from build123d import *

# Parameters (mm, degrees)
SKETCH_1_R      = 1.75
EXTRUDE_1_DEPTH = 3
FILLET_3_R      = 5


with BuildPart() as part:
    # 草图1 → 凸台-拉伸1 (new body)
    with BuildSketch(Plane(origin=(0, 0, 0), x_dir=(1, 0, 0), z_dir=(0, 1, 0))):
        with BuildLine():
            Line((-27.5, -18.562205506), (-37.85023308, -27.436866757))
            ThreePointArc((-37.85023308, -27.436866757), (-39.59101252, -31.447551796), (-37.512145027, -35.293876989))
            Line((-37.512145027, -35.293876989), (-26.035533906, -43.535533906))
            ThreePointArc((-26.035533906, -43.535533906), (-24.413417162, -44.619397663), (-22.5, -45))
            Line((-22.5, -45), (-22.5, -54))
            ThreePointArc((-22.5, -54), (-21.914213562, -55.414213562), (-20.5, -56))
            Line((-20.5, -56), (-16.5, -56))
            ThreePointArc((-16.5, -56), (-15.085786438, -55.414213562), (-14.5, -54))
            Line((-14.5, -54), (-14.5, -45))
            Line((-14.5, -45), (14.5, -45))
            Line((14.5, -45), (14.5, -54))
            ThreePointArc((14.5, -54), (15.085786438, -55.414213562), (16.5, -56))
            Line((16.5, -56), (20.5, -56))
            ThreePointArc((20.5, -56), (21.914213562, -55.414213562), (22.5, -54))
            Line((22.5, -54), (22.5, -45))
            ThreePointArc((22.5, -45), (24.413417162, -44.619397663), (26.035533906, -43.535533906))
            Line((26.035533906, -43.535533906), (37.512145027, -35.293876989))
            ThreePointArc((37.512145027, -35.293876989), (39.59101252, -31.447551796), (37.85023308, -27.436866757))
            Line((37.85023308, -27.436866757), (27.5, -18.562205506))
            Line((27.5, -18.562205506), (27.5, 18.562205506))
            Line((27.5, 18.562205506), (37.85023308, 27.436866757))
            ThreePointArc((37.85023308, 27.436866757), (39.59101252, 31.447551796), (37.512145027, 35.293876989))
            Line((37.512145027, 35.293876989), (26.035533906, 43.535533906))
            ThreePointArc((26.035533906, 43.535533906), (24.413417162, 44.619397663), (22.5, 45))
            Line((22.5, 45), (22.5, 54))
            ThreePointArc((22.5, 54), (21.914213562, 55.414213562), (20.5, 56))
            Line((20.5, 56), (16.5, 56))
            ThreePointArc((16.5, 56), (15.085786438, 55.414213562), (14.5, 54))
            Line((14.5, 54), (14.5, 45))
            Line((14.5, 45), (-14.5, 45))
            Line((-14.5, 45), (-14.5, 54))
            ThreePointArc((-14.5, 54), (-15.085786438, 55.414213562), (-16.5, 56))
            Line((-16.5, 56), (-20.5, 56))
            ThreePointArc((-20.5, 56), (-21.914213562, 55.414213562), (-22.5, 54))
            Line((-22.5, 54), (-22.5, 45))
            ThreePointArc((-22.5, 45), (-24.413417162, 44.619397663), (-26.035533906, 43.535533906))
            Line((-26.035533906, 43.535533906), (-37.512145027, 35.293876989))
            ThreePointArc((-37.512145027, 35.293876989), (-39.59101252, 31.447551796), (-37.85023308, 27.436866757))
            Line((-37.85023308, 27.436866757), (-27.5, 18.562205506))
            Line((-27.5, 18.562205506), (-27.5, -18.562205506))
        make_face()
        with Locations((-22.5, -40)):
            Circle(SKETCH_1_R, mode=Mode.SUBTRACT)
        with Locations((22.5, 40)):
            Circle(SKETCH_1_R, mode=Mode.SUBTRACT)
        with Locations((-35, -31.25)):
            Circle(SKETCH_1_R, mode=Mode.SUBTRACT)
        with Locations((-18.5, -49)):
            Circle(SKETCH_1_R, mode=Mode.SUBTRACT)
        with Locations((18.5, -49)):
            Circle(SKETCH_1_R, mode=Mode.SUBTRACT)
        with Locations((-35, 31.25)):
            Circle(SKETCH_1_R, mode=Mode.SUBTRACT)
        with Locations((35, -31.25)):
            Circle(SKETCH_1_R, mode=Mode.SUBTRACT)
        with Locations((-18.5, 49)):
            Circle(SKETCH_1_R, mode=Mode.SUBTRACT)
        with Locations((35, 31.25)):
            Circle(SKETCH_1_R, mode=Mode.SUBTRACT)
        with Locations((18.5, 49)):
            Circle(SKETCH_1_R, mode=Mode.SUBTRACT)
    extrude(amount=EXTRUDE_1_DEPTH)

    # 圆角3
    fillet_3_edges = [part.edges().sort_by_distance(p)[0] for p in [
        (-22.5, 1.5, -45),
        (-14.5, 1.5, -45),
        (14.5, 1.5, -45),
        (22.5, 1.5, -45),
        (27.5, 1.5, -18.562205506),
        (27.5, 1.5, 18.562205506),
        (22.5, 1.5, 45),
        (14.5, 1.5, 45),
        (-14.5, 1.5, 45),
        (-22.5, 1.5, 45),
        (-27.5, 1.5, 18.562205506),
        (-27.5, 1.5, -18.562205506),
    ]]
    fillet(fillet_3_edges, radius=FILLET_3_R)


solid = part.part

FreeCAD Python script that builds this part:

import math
import FreeCAD as App
import Part
import Sketcher


def edges_at(feature, points):
    """Names of the edges that pass closest to the given points."""
    edges = feature.Shape.Edges
    near = lambda p: min(range(len(edges)), key=lambda i: edges[i].distToShape(Part.Vertex(*p))[0])
    return sorted({f"Edge{near(p) + 1}" for p in points})

doc = App.newDocument("Part")
body = doc.addObject("PartDesign::Body", "Body")

sketch1 = body.newObject("Sketcher::SketchObject", "Sketch")
sketch1.AttachmentSupport = (doc.getObject("XZ_Plane"), [""])
sketch1.MapMode = "FlatFace"
sketch1.addGeometry(Part.LineSegment(App.Vector(-27.5, 18.6, 0), App.Vector(-37.9, 27.4, 0)), False)
sketch1.addGeometry(Part.ArcOfCircle(Part.Circle(App.Vector(-34.6, 31.2, 0), App.Vector(0, 0, 1), 5), math.radians(126), math.radians(229)), False)
sketch1.addGeometry(Part.LineSegment(App.Vector(-37.5, 35.3, 0), App.Vector(-26, 43.5, 0)), False)
sketch1.addGeometry(Part.ArcOfCircle(Part.Circle(App.Vector(-22.5, 40, 0), App.Vector(0, 0, 1), 5), math.radians(90), math.radians(135)), False)
sketch1.addGeometry(Part.LineSegment(App.Vector(-22.5, 45, 0), App.Vector(-22.5, 54, 0)), False)
sketch1.addGeometry(Part.ArcOfCircle(Part.Circle(App.Vector(-20.5, 54, 0), App.Vector(0, 0, 1), 2), math.radians(90), math.radians(180)), False)
sketch1.addGeometry(Part.LineSegment(App.Vector(-20.5, 56, 0), App.Vector(-16.5, 56, 0)), False)
sketch1.addGeometry(Part.ArcOfCircle(Part.Circle(App.Vector(-16.5, 54, 0), App.Vector(0, 0, 1), 2), math.radians(0), math.radians(90)), False)
sketch1.addGeometry(Part.LineSegment(App.Vector(-14.5, 54, 0), App.Vector(-14.5, 45, 0)), False)
sketch1.addGeometry(Part.LineSegment(App.Vector(-14.5, 45, 0), App.Vector(14.5, 45, 0)), False)
sketch1.addGeometry(Part.LineSegment(App.Vector(14.5, 45, 0), App.Vector(14.5, 54, 0)), False)
sketch1.addGeometry(Part.ArcOfCircle(Part.Circle(App.Vector(16.5, 54, 0), App.Vector(0, 0, 1), 2), math.radians(90), math.radians(180)), False)
sketch1.addGeometry(Part.LineSegment(App.Vector(16.5, 56, 0), App.Vector(20.5, 56, 0)), False)
sketch1.addGeometry(Part.ArcOfCircle(Part.Circle(App.Vector(20.5, 54, 0), App.Vector(0, 0, 1), 2), math.radians(0), math.radians(90)), False)
sketch1.addGeometry(Part.LineSegment(App.Vector(22.5, 54, 0), App.Vector(22.5, 45, 0)), False)
sketch1.addGeometry(Part.ArcOfCircle(Part.Circle(App.Vector(22.5, 40, 0), App.Vector(0, 0, 1), 5), math.radians(45), math.radians(90)), False)
sketch1.addGeometry(Part.LineSegment(App.Vector(26, 43.5, 0), App.Vector(37.5, 35.3, 0)), False)
sketch1.addGeometry(Part.ArcOfCircle(Part.Circle(App.Vector(34.6, 31.2, 0), App.Vector(0, 0, 1), 5), math.radians(-49), math.radians(54)), False)
sketch1.addGeometry(Part.LineSegment(App.Vector(37.9, 27.4, 0), App.Vector(27.5, 18.6, 0)), False)
sketch1.addGeometry(Part.LineSegment(App.Vector(27.5, 18.6, 0), App.Vector(27.5, -18.6, 0)), False)
sketch1.addGeometry(Part.LineSegment(App.Vector(27.5, -18.6, 0), App.Vector(37.9, -27.4, 0)), False)
sketch1.addGeometry(Part.ArcOfCircle(Part.Circle(App.Vector(34.6, -31.2, 0), App.Vector(0, 0, 1), 5), math.radians(-54), math.radians(49)), False)
sketch1.addGeometry(Part.LineSegment(App.Vector(37.5, -35.3, 0), App.Vector(26, -43.5, 0)), False)
sketch1.addGeometry(Part.ArcOfCircle(Part.Circle(App.Vector(22.5, -40, 0), App.Vector(0, 0, 1), 5), math.radians(-90), math.radians(-45)), False)
sketch1.addGeometry(Part.LineSegment(App.Vector(22.5, -45, 0), App.Vector(22.5, -54, 0)), False)
sketch1.addGeometry(Part.ArcOfCircle(Part.Circle(App.Vector(20.5, -54, 0), App.Vector(0, 0, 1), 2), math.radians(-90), math.radians(0)), False)
sketch1.addGeometry(Part.LineSegment(App.Vector(20.5, -56, 0), App.Vector(16.5, -56, 0)), False)
sketch1.addGeometry(Part.ArcOfCircle(Part.Circle(App.Vector(16.5, -54, 0), App.Vector(0, 0, 1), 2), math.radians(-180), math.radians(-90)), False)
sketch1.addGeometry(Part.LineSegment(App.Vector(14.5, -54, 0), App.Vector(14.5, -45, 0)), False)
sketch1.addGeometry(Part.LineSegment(App.Vector(14.5, -45, 0), App.Vector(-14.5, -45, 0)), False)
sketch1.addGeometry(Part.LineSegment(App.Vector(-14.5, -45, 0), App.Vector(-14.5, -54, 0)), False)
sketch1.addGeometry(Part.ArcOfCircle(Part.Circle(App.Vector(-16.5, -54, 0), App.Vector(0, 0, 1), 2), math.radians(-90), math.radians(0)), False)
sketch1.addGeometry(Part.LineSegment(App.Vector(-16.5, -56, 0), App.Vector(-20.5, -56, 0)), False)
sketch1.addGeometry(Part.ArcOfCircle(Part.Circle(App.Vector(-20.5, -54, 0), App.Vector(0, 0, 1), 2), math.radians(-180), math.radians(-90)), False)
sketch1.addGeometry(Part.LineSegment(App.Vector(-22.5, -54, 0), App.Vector(-22.5, -45, 0)), False)
sketch1.addGeometry(Part.ArcOfCircle(Part.Circle(App.Vector(-22.5, -40, 0), App.Vector(0, 0, 1), 5), math.radians(-135), math.radians(-90)), False)
sketch1.addGeometry(Part.LineSegment(App.Vector(-26, -43.5, 0), App.Vector(-37.5, -35.3, 0)), False)
sketch1.addGeometry(Part.ArcOfCircle(Part.Circle(App.Vector(-34.6, -31.2, 0), App.Vector(0, 0, 1), 5), math.radians(131), math.radians(234)), False)
sketch1.addGeometry(Part.LineSegment(App.Vector(-37.9, -27.4, 0), App.Vector(-27.5, -18.6, 0)), False)
sketch1.addGeometry(Part.LineSegment(App.Vector(-27.5, -18.6, 0), App.Vector(-27.5, 18.6, 0)), False)
sketch1.addGeometry(Part.Circle(App.Vector(-18.5, 49, 0), App.Vector(0, 0, 1), 1.8), False)
sketch1.addGeometry(Part.Circle(App.Vector(-22.5, 40, 0), App.Vector(0, 0, 1), 1.8), False)
sketch1.addGeometry(Part.Circle(App.Vector(-35, 31.2, 0), App.Vector(0, 0, 1), 1.8), False)
sketch1.addGeometry(Part.Circle(App.Vector(18.5, 49, 0), App.Vector(0, 0, 1), 1.8), False)
sketch1.addGeometry(Part.Circle(App.Vector(35, 31.2, 0), App.Vector(0, 0, 1), 1.8), False)
sketch1.addGeometry(Part.Circle(App.Vector(-35, -31.2, 0), App.Vector(0, 0, 1), 1.8), False)
sketch1.addGeometry(Part.Circle(App.Vector(-18.5, -49, 0), App.Vector(0, 0, 1), 1.8), False)
sketch1.addGeometry(Part.Circle(App.Vector(35, -31.2, 0), App.Vector(0, 0, 1), 1.8), False)
sketch1.addGeometry(Part.Circle(App.Vector(22.5, -40, 0), App.Vector(0, 0, 1), 1.8), False)
sketch1.addGeometry(Part.Circle(App.Vector(18.5, -49, 0), App.Vector(0, 0, 1), 1.8), False)
sketch1.addConstraint(Sketcher.Constraint("Tangent", 0, 2, 1, 2))
sketch1.addConstraint(Sketcher.Constraint("Tangent", 1, 1, 2, 1))
sketch1.addConstraint(Sketcher.Constraint("Coincident", 2, 2, 3, 2))
sketch1.addConstraint(Sketcher.Constraint("Coincident", 3, 1, 4, 1))
sketch1.addConstraint(Sketcher.Constraint("Tangent", 4, 2, 5, 2))
sketch1.addConstraint(Sketcher.Constraint("Tangent", 5, 1, 6, 1))
sketch1.addConstraint(Sketcher.Constraint("Tangent", 6, 2, 7, 2))
sketch1.addConstraint(Sketcher.Constraint("Tangent", 7, 1, 8, 1))
sketch1.addConstraint(Sketcher.Constraint("Coincident", 8, 2, 9, 1))
sketch1.addConstraint(Sketcher.Constraint("Coincident", 9, 2, 10, 1))
sketch1.addConstraint(Sketcher.Constraint("Tangent", 10, 2, 11, 2))
sketch1.addConstraint(Sketcher.Constraint("Tangent", 11, 1, 12, 1))
sketch1.addConstraint(Sketcher.Constraint("Tangent", 12, 2, 13, 2))
sketch1.addConstraint(Sketcher.Constraint("Tangent", 13, 1, 14, 1))
sketch1.addConstraint(Sketcher.Constraint("Coincident", 14, 2, 15, 2))
sketch1.addConstraint(Sketcher.Constraint("Coincident", 15, 1, 16, 1))
sketch1.addConstraint(Sketcher.Constraint("Tangent", 16, 2, 17, 2))
sketch1.addConstraint(Sketcher.Constraint("Tangent", 17, 1, 18, 1))
sketch1.addConstraint(Sketcher.Constraint("Coincident", 18, 2, 19, 1))
sketch1.addConstraint(Sketcher.Constraint("Coincident", 19, 2, 20, 1))
sketch1.addConstraint(Sketcher.Constraint("Tangent", 20, 2, 21, 2))
sketch1.addConstraint(Sketcher.Constraint("Tangent", 21, 1, 22, 1))
sketch1.addConstraint(Sketcher.Constraint("Coincident", 22, 2, 23, 2))
sketch1.addConstraint(Sketcher.Constraint("Coincident", 23, 1, 24, 1))
sketch1.addConstraint(Sketcher.Constraint("Tangent", 24, 2, 25, 2))
sketch1.addConstraint(Sketcher.Constraint("Tangent", 25, 1, 26, 1))
sketch1.addConstraint(Sketcher.Constraint("Tangent", 26, 2, 27, 2))
sketch1.addConstraint(Sketcher.Constraint("Tangent", 27, 1, 28, 1))
sketch1.addConstraint(Sketcher.Constraint("Coincident", 28, 2, 29, 1))
sketch1.addConstraint(Sketcher.Constraint("Coincident", 29, 2, 30, 1))
sketch1.addConstraint(Sketcher.Constraint("Tangent", 30, 2, 31, 2))
sketch1.addConstraint(Sketcher.Constraint("Tangent", 31, 1, 32, 1))
sketch1.addConstraint(Sketcher.Constraint("Tangent", 32, 2, 33, 2))
sketch1.addConstraint(Sketcher.Constraint("Tangent", 33, 1, 34, 1))
sketch1.addConstraint(Sketcher.Constraint("Coincident", 34, 2, 35, 2))
sketch1.addConstraint(Sketcher.Constraint("Coincident", 35, 1, 36, 1))
sketch1.addConstraint(Sketcher.Constraint("Tangent", 36, 2, 37, 2))
sketch1.addConstraint(Sketcher.Constraint("Tangent", 37, 1, 38, 1))
sketch1.addConstraint(Sketcher.Constraint("Coincident", 38, 2, 39, 1))
sketch1.addConstraint(Sketcher.Constraint("Coincident", 39, 2, 0, 1))
sketch1.addConstraint(Sketcher.Constraint("Vertical", 4))
sketch1.addConstraint(Sketcher.Constraint("Horizontal", 6))
sketch1.addConstraint(Sketcher.Constraint("Vertical", 8))
sketch1.addConstraint(Sketcher.Constraint("Horizontal", 9))
sketch1.addConstraint(Sketcher.Constraint("Vertical", 10))
sketch1.addConstraint(Sketcher.Constraint("Horizontal", 12))
sketch1.addConstraint(Sketcher.Constraint("Vertical", 14))
sketch1.addConstraint(Sketcher.Constraint("Vertical", 19))
sketch1.addConstraint(Sketcher.Constraint("Vertical", 24))
sketch1.addConstraint(Sketcher.Constraint("Horizontal", 26))
sketch1.addConstraint(Sketcher.Constraint("Vertical", 28))
sketch1.addConstraint(Sketcher.Constraint("Horizontal", 29))
sketch1.addConstraint(Sketcher.Constraint("Vertical", 30))
sketch1.addConstraint(Sketcher.Constraint("Horizontal", 32))
sketch1.addConstraint(Sketcher.Constraint("Vertical", 34))
sketch1.addConstraint(Sketcher.Constraint("Vertical", 39))
sketch1.addConstraint(Sketcher.Constraint("Coincident", 41, 3, 3, 3))
sketch1.addConstraint(Sketcher.Constraint("Coincident", 48, 3, 23, 3))
sketch1.addConstraint(Sketcher.Constraint("Equal", 1, 3))
sketch1.addConstraint(Sketcher.Constraint("Equal", 5, 7))
sketch1.addConstraint(Sketcher.Constraint("Equal", 7, 11))
sketch1.addConstraint(Sketcher.Constraint("Equal", 11, 13))
sketch1.addConstraint(Sketcher.Constraint("Equal", 3, 15))
sketch1.addConstraint(Sketcher.Constraint("Equal", 15, 17))
sketch1.addConstraint(Sketcher.Constraint("Equal", 17, 21))
sketch1.addConstraint(Sketcher.Constraint("Equal", 21, 23))
sketch1.addConstraint(Sketcher.Constraint("Equal", 13, 25))
sketch1.addConstraint(Sketcher.Constraint("Equal", 25, 27))
sketch1.addConstraint(Sketcher.Constraint("Equal", 27, 31))
sketch1.addConstraint(Sketcher.Constraint("Equal", 31, 33))
sketch1.addConstraint(Sketcher.Constraint("Equal", 23, 35))
sketch1.addConstraint(Sketcher.Constraint("Equal", 35, 37))
sketch1.addConstraint(Sketcher.Constraint("Equal", 40, 41))
sketch1.addConstraint(Sketcher.Constraint("Equal", 41, 42))
sketch1.addConstraint(Sketcher.Constraint("Equal", 42, 43))
sketch1.addConstraint(Sketcher.Constraint("Equal", 43, 44))
sketch1.addConstraint(Sketcher.Constraint("Equal", 44, 45))
sketch1.addConstraint(Sketcher.Constraint("Equal", 45, 46))
sketch1.addConstraint(Sketcher.Constraint("Equal", 46, 47))
sketch1.addConstraint(Sketcher.Constraint("Equal", 47, 48))
sketch1.addConstraint(Sketcher.Constraint("Equal", 48, 49))
sketch1.addConstraint(Sketcher.Constraint("Symmetric", 1, 3, 21, 3, -1, 1))
sketch1.addConstraint(Sketcher.Constraint("Symmetric", 3, 3, 23, 3, -1, 1))
sketch1.addConstraint(Sketcher.Constraint("Symmetric", 5, 3, 25, 3, -1, 1))
sketch1.addConstraint(Sketcher.Constraint("Symmetric", 11, 3, 31, 3, -1, 1))
sketch1.addConstraint(Sketcher.Constraint("Symmetric", 15, 3, 35, 3, -1, 1))
sketch1.addConstraint(Sketcher.Constraint("Symmetric", 17, 3, 37, 3, -1, 1))
sketch1.addConstraint(Sketcher.Constraint("Symmetric", 44, 3, 45, 3, -1, 1))
sketch1.addConstraint(Sketcher.Constraint("Symmetric", 43, 3, 46, 3, -1, 1))
sketch1.addConstraint(Sketcher.Constraint("Symmetric", 42, 3, 47, 3, -1, 1))
sketch1.addConstraint(Sketcher.Constraint("Symmetric", 40, 3, 49, 3, -1, 1))
sketch1.addConstraint(Sketcher.Constraint("Symmetric", 8, 2, 28, 2, -1, 1))
sketch1.addConstraint(Sketcher.Constraint("Symmetric", 18, 2, 38, 2, -1, 1))
sketch1.addConstraint(Sketcher.Constraint("Symmetric", 7, 3, 11, 3, -2))
sketch1.addConstraint(Sketcher.Constraint("Symmetric", 3, 3, 15, 3, -2))
sketch1.addConstraint(Sketcher.Constraint("Symmetric", 1, 3, 17, 3, -2))
sketch1.addConstraint(Sketcher.Constraint("Symmetric", 40, 3, 43, 3, -2))
sketch1.addConstraint(Sketcher.Constraint("Symmetric", 42, 3, 44, 3, -2))
sketch1.addConstraint(Sketcher.Constraint("Parallel", 0, 20))
sketch1.addConstraint(Sketcher.Constraint("Parallel", 2, 22))
sketch1.addConstraint(Sketcher.Constraint("Parallel", 16, 36))
sketch1.addConstraint(Sketcher.Constraint("Horizontal", 3, 1, 8, 2))
sketch1.addConstraint(Sketcher.Constraint("Horizontal", 2, 2, 15, 1))
sketch1.addConstraint(Sketcher.Constraint("Horizontal", 0, 2, 17, 1))
sketch1.addConstraint(Sketcher.Constraint("Vertical", 13, 3, 25, 3))
sketch1.addConstraint(Sketcher.Constraint("Vertical", 5, 3, 33, 3))
sketch1.addConstraint(Sketcher.Constraint("Vertical", 41, 3, 3, 1))
sketch1.addConstraint(Sketcher.Constraint("Radius", 1, 5.0))
sketch1.addConstraint(Sketcher.Constraint("Radius", 5, 2.0))
sketch1.addConstraint(Sketcher.Constraint("Diameter", 40, 3.5))
sketch1.addConstraint(Sketcher.Constraint("DistanceX", 6, 1, 6, 2, 4.0))
sketch1.addConstraint(Sketcher.Constraint("DistanceX", 9, 1, 9, 2, 29.0))
sketch1.addConstraint(Sketcher.Constraint("DistanceY", 4, 1, 4, 2, 9.0))
sketch1.addConstraint(Sketcher.Constraint("DistanceY", -1, 1, 3, 3, 40.0))
sketch1.addConstraint(Sketcher.Constraint("DistanceY", -1, 1, 40, 3, 49.0))
sketch1.addConstraint(Sketcher.Constraint("DistanceX", 42, 3, -1, 1, 35.0))
sketch1.addConstraint(Sketcher.Constraint("DistanceX", 40, 3, -1, 1, 18.5))
sketch1.addConstraint(Sketcher.Constraint("DistanceX", -1, 1, 18, 2, 27.5))
sketch1.addConstraint(Sketcher.Constraint("DistanceY", -1, 1, 42, 3, 31.25))
sketch1.addConstraint(Sketcher.Constraint("DistanceY", 19, 2, 19, 1, 37.124411))
sketch1.addConstraint(Sketcher.Constraint("DistanceY", -1, 1, 1, 3, 31.2326))
sketch1.addConstraint(Sketcher.Constraint("Distance", 0, 13.634036))
sketch1.addConstraint(Sketcher.Constraint("Distance", 2, 14.129314))
pad1 = body.newObject("PartDesign::Pad", "Pad")
pad1.Profile = sketch1
pad1.Length = 3
pad1.Reversed = True
doc.recompute()

fillet = body.newObject("PartDesign::Fillet", "Fillet")
fillet.Base = (pad1, edges_at(pad1, [
    (-22.5, 1.5, -45),
    (-14.5, 1.5, -45),
    (14.5, 1.5, -45),
    (22.5, 1.5, -45),
    (27.5, 1.5, -18.562),
    (27.5, 1.5, 18.562),
    (22.5, 1.5, 45),
    (14.5, 1.5, 45),
    (-14.5, 1.5, 45),
    (-22.5, 1.5, 45),
    (-27.5, 1.5, 18.562),
    (-27.5, 1.5, -18.562),
]))
fillet.Radius = 5

doc.recompute()
